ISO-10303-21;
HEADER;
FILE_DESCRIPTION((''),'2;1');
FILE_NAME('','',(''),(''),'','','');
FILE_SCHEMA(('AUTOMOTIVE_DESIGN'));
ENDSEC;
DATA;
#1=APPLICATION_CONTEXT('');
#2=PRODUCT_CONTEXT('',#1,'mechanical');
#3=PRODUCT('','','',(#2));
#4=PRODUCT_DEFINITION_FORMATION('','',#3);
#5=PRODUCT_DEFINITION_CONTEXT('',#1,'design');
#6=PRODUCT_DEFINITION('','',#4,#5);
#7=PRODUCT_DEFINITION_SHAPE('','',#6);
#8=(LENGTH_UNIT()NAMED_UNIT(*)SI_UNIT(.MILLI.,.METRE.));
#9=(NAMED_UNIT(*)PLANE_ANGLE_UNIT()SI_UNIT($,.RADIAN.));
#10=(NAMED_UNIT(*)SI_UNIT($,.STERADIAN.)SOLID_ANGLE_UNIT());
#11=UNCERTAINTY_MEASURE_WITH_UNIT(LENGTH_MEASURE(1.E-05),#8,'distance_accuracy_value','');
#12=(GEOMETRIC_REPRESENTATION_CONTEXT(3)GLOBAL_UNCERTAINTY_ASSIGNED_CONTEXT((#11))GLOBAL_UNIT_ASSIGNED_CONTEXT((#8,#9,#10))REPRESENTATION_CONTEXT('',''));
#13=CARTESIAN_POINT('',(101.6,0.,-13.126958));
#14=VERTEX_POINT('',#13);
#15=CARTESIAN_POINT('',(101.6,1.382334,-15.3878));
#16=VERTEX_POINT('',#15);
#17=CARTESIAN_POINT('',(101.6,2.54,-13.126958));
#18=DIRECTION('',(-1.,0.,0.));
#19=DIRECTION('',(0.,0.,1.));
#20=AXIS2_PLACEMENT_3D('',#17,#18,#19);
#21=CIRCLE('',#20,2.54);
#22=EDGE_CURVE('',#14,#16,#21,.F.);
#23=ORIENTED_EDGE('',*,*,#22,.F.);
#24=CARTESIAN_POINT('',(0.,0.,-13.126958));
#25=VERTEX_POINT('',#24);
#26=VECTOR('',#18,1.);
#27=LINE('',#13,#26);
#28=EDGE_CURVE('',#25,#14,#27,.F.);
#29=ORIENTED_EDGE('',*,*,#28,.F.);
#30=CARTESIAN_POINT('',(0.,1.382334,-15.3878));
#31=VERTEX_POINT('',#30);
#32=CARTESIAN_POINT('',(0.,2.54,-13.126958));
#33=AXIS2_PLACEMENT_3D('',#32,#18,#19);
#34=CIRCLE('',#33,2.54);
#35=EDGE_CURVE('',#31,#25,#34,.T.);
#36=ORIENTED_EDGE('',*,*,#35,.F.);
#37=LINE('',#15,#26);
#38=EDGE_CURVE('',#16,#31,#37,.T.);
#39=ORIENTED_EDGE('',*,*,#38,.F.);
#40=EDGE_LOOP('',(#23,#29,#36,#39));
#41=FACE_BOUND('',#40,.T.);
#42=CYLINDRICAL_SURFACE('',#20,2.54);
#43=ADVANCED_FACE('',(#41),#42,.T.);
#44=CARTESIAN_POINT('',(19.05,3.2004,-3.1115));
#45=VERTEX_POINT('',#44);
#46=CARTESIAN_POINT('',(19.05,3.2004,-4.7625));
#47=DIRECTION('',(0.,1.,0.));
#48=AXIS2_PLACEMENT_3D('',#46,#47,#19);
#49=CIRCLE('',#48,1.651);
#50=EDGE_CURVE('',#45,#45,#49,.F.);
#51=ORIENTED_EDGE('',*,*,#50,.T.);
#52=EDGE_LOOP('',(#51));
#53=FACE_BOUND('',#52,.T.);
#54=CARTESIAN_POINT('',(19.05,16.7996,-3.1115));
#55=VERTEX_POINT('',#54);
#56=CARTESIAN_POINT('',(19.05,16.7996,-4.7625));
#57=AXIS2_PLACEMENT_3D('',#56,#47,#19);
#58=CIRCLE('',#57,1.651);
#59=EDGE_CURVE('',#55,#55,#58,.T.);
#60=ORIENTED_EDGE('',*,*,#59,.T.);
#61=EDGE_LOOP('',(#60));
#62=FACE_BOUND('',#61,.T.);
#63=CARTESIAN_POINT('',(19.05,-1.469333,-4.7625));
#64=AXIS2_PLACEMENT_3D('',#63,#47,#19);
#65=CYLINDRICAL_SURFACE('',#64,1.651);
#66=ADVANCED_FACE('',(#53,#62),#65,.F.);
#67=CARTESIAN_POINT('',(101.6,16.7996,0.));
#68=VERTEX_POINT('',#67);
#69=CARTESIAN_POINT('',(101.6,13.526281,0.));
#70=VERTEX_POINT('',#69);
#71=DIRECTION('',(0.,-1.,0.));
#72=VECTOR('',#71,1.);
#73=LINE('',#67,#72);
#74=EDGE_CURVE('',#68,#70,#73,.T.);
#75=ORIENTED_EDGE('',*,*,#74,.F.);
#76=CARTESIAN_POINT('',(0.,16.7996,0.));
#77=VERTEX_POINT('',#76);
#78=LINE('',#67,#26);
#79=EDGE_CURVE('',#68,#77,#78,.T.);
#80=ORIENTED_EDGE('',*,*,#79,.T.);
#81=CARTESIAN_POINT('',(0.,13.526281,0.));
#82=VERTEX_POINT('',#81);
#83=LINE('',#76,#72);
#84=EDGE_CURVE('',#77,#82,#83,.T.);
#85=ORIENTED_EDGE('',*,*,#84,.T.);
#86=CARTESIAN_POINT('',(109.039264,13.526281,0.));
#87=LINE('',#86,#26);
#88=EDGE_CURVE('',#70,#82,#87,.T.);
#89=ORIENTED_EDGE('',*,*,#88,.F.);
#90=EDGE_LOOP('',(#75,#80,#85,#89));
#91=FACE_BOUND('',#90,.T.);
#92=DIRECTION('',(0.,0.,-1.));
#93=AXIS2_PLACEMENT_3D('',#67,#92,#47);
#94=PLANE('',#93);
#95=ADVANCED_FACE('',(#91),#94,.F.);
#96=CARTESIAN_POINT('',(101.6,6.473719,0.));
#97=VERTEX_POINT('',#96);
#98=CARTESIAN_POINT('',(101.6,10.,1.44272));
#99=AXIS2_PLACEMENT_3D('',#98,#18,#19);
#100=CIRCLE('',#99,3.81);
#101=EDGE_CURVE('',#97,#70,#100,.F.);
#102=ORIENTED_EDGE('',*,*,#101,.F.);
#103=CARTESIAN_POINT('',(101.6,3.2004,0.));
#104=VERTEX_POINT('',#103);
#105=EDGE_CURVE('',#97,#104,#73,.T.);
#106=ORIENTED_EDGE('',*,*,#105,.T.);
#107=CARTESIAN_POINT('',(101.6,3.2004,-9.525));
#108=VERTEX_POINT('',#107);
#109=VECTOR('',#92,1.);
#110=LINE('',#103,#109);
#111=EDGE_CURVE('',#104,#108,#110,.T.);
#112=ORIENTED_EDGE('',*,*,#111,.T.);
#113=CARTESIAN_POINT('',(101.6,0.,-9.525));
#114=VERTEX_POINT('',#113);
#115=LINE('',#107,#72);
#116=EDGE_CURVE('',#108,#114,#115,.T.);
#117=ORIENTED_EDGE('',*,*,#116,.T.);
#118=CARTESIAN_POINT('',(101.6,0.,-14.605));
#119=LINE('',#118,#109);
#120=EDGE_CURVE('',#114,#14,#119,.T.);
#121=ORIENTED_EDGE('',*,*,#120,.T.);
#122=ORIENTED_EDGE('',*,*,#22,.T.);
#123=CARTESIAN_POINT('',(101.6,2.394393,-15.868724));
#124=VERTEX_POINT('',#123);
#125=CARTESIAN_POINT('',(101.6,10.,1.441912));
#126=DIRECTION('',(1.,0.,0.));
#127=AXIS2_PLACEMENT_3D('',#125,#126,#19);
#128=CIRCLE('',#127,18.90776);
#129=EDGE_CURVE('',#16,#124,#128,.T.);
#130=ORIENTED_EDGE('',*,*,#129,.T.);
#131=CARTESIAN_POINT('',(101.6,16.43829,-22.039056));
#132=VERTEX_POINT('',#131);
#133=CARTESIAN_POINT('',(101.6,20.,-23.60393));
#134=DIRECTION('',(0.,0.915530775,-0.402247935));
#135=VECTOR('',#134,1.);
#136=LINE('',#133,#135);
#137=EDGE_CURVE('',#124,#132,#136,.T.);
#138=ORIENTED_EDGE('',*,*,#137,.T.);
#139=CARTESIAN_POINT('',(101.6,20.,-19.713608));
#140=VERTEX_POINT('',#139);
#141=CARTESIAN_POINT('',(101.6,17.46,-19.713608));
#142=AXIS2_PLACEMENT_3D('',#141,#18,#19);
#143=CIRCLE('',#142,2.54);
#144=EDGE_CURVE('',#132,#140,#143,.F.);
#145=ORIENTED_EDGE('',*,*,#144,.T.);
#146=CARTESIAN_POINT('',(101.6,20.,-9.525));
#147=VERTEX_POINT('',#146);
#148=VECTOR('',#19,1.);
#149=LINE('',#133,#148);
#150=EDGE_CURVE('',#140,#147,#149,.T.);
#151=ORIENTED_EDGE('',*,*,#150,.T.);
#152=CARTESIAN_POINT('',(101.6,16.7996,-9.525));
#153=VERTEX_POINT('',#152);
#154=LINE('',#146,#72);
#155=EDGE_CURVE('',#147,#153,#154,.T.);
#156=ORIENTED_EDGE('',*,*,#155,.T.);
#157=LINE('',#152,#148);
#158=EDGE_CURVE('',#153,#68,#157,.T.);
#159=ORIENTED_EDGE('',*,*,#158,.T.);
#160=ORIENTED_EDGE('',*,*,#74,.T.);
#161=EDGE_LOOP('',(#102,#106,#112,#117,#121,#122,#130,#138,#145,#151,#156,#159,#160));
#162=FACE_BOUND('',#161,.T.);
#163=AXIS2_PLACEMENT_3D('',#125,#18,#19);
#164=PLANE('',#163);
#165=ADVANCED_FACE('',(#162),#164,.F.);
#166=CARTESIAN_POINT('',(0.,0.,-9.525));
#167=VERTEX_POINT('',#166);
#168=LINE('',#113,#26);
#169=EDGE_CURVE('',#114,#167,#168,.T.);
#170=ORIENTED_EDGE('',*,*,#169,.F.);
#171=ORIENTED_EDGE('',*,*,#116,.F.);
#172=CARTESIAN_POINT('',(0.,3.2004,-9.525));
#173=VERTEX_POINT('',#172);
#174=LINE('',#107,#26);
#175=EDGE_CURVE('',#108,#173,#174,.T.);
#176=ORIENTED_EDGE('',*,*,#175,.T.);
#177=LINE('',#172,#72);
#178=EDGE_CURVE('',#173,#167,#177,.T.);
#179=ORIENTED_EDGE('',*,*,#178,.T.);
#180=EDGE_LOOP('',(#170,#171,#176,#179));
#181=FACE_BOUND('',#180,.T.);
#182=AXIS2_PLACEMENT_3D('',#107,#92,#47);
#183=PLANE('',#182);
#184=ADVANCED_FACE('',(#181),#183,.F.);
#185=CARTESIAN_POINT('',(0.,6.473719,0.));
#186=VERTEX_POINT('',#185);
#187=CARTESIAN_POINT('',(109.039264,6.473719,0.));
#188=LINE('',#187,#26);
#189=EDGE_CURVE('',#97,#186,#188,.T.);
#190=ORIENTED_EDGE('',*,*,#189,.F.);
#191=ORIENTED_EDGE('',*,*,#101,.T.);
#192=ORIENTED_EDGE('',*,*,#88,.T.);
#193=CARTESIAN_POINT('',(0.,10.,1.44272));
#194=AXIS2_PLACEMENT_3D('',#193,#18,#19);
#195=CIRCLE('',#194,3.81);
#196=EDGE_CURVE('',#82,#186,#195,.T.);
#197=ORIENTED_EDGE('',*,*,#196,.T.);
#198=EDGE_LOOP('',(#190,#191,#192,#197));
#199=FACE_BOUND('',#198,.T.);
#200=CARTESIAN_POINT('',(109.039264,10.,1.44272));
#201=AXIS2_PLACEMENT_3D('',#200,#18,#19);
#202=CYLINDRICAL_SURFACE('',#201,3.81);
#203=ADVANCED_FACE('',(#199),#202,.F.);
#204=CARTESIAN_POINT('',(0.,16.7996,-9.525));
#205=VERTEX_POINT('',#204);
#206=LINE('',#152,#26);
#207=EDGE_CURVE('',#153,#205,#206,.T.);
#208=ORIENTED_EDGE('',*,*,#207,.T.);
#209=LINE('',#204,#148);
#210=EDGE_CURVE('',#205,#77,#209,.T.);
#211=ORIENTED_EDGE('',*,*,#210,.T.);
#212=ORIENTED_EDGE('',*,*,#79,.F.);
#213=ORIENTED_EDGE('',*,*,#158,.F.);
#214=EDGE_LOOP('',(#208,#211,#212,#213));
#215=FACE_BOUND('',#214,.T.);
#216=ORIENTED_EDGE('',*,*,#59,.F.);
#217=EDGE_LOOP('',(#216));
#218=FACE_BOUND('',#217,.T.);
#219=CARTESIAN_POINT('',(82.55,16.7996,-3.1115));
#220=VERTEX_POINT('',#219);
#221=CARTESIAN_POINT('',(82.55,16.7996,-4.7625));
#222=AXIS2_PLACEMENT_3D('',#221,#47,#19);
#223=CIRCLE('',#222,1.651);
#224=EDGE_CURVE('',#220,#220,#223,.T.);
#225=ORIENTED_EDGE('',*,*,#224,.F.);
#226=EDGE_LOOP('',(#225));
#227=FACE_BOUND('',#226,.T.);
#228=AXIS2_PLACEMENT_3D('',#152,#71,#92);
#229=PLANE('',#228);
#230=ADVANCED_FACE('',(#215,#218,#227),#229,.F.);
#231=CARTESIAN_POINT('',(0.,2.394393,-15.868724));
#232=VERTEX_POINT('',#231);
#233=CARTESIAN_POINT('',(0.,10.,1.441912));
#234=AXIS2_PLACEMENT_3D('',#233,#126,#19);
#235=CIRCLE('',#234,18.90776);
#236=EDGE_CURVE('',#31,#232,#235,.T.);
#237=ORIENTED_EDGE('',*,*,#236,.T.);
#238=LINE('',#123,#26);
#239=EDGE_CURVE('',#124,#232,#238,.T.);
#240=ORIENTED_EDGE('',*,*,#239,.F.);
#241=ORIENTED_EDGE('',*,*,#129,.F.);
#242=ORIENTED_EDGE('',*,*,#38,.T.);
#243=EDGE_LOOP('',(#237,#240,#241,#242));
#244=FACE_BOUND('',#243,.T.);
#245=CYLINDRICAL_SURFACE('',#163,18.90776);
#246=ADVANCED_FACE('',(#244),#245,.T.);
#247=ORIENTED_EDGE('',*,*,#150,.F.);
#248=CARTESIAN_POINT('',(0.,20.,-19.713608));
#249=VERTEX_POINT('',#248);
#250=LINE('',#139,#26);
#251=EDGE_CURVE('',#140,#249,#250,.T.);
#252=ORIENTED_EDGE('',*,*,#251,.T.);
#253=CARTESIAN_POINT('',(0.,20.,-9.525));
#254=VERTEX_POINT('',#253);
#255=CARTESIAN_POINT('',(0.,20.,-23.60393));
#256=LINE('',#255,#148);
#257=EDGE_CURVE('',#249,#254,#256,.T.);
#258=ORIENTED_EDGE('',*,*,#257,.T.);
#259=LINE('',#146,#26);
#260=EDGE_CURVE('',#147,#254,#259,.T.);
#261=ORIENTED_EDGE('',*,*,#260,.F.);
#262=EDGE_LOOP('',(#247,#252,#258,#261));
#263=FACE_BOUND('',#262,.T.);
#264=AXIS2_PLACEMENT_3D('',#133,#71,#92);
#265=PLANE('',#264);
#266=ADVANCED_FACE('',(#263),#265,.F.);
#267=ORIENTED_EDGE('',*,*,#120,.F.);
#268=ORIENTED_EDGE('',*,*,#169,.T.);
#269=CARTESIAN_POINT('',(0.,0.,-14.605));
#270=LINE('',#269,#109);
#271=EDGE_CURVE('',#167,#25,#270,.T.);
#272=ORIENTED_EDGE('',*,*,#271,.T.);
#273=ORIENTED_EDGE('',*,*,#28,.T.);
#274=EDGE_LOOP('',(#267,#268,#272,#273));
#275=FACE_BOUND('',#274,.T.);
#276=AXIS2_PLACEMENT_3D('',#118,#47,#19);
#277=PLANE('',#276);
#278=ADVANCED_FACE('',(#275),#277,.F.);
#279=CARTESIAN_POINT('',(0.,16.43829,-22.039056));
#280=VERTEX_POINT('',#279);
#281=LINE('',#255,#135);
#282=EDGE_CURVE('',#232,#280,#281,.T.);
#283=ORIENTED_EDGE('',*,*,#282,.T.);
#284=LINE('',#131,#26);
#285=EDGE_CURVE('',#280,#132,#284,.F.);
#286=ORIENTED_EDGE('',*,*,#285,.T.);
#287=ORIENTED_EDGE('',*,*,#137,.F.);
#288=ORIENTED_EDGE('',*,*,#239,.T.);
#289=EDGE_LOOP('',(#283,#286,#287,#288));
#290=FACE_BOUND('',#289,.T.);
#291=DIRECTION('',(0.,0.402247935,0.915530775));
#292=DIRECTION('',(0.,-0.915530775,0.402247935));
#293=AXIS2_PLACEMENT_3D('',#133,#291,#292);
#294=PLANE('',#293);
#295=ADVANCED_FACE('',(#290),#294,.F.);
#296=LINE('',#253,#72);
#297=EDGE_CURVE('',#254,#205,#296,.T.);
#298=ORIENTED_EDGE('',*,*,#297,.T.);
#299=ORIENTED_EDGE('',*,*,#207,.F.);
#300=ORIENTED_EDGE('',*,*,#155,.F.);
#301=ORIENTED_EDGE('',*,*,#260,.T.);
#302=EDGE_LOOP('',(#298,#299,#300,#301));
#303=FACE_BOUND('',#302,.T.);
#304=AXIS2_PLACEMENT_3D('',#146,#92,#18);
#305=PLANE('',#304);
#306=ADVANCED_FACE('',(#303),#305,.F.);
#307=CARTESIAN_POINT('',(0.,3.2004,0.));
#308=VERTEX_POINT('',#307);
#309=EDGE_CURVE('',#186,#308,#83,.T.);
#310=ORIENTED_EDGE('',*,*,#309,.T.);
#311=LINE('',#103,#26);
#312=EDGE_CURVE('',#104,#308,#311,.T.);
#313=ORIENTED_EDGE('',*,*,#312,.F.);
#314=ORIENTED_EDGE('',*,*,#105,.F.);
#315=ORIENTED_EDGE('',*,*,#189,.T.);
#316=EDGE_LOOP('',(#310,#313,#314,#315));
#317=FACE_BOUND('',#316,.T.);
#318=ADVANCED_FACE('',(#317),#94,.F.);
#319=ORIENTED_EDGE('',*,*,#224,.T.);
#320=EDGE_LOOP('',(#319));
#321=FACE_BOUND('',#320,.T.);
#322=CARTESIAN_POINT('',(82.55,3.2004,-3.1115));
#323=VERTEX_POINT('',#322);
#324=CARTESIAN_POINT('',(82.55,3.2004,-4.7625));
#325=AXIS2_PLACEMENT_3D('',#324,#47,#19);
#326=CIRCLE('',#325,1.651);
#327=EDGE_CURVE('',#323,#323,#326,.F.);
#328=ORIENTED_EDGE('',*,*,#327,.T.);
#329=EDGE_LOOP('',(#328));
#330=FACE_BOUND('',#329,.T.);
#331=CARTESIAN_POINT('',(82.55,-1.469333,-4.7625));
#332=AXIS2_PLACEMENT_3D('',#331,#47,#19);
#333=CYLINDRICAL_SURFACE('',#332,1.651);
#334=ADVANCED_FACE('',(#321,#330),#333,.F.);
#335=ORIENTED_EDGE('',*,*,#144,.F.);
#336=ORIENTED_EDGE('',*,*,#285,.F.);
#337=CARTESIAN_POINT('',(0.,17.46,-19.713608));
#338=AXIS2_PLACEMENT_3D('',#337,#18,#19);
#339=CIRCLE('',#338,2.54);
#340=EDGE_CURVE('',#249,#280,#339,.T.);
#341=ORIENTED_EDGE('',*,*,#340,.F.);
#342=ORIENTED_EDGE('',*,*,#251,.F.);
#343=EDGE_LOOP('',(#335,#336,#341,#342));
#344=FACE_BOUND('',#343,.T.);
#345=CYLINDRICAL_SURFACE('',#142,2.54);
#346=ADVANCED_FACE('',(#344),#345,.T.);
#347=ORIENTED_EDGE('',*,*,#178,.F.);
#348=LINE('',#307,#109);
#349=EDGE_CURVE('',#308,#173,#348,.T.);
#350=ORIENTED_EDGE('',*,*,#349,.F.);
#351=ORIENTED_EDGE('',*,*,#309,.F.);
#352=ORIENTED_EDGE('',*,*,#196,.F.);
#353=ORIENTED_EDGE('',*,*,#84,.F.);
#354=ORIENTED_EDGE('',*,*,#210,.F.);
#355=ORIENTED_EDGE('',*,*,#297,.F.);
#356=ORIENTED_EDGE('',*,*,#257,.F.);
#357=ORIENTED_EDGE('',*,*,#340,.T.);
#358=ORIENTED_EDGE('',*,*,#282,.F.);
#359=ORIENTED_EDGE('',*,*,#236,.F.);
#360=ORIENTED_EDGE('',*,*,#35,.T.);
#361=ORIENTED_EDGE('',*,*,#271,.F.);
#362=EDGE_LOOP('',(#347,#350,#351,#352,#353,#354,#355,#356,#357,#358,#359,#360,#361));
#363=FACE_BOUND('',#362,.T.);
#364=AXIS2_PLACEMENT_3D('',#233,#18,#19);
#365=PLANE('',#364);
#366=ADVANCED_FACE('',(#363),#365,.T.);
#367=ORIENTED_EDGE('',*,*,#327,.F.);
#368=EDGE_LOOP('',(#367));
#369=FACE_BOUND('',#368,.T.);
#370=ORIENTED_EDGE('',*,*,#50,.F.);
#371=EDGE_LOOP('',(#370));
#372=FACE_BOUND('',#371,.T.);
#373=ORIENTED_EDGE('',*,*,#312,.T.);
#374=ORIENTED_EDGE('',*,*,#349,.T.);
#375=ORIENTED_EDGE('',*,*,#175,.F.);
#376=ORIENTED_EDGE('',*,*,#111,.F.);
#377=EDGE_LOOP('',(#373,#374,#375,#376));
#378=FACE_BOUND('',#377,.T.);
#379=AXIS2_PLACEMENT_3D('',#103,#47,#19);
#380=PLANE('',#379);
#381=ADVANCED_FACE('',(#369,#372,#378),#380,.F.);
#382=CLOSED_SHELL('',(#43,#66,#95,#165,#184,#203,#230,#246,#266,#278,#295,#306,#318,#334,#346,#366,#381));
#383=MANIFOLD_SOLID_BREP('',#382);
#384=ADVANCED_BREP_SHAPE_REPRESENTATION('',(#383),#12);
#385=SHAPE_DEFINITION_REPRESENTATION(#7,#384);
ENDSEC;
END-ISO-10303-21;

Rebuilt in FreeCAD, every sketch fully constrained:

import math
import FreeCAD as App
import Part
import Sketcher

V = App.Vector
Q = App.Units.Quantity


def edges_at(feature, points):
    """Names of the edges that pass closest to the given points."""
    edges = feature.Shape.Edges
    near = lambda p: min(range(len(edges)), key=lambda i: edges[i].distToShape(Part.Vertex(*p))[0])
    return sorted({f"Edge{near(p) + 1}" for p in points})

doc = App.newDocument("Part")
body = doc.addObject("PartDesign::Body", "Body")

sketch1 = body.newObject("Sketcher::SketchObject", "Sketch")
sketch1.AttachmentSupport = (doc.getObject("YZ_Plane"), [""])
sketch1.MapMode = "FlatFace"
sketch1.addGeometry([
    Part.LineSegment(V(16.8, 0, 0), V(3.2, 0, 0)),
    Part.LineSegment(V(3.2, 0, 0), V(3.2, -9.5, 0)),
    Part.LineSegment(V(3.2, -9.5, 0), V(0, -9.5, 0)),
    Part.LineSegment(V(0, -9.5, 0), V(0, -14.6, 0)),
    Part.ArcOfCircle(Part.Circle(V(10, 1.4, 0), V(0, 0, 1), 18.9), math.radians(-121.93), math.radians(-113.72)),
    Part.LineSegment(V(2.4, -15.9, 0), V(20, -23.6, 0)),
    Part.LineSegment(V(20, -23.6, 0), V(20, -9.5, 0)),
    Part.LineSegment(V(20, -9.5, 0), V(16.8, -9.5, 0)),
    Part.LineSegment(V(16.8, -9.5, 0), V(16.8, 0, 0)),
], False)
sketch1.addConstraint([
    Sketcher.Constraint("Coincident", 0, 2, 1, 1),
    Sketcher.Constraint("Coincident", 1, 2, 2, 1),
    Sketcher.Constraint("Coincident", 2, 2, 3, 1),
    Sketcher.Constraint("Coincident", 3, 2, 4, 1),
    Sketcher.Constraint("Tangent", 4, 2, 5, 1),
    Sketcher.Constraint("Coincident", 5, 2, 6, 1),
    Sketcher.Constraint("Coincident", 6, 2, 7, 1),
    Sketcher.Constraint("Coincident", 7, 2, 8, 1),
    Sketcher.Constraint("Coincident", 8, 2, 0, 1),
    Sketcher.Constraint("Horizontal", 0),
    Sketcher.Constraint("Vertical", 1),
    Sketcher.Constraint("Horizontal", 2),
    Sketcher.Constraint("Vertical", 3),
    Sketcher.Constraint("Vertical", 6),
    Sketcher.Constraint("Horizontal", 7),
    Sketcher.Constraint("Vertical", 8),
    Sketcher.Constraint("PointOnObject", 0, 2, -1),
    Sketcher.Constraint("PointOnObject", 2, 2, -2),
    Sketcher.Constraint("Horizontal", 2, 2, 6, 2),
    Sketcher.Constraint("Equal", 2, 7),
    Sketcher.Constraint("DistanceY", 3, 2, 3, 1, Q("0.2 in")),
    Sketcher.Constraint("Radius", 4, Q("0.7444 in")),
    Sketcher.Constraint("DistanceX", 2, 2, 2, 1, Q("0.126 in")),
    Sketcher.Constraint("DistanceY", 1, 2, 1, 1, Q("0.375 in")),
    Sketcher.Constraint("DistanceX", 0, 2, 0, 1, 13.5992),
    Sketcher.Constraint("DistanceY", 6, 1, 6, 2, 14.07893),
    Sketcher.Constraint("DistanceX", -1, 1, 4, 3, 10.0),
])
pad1 = body.newObject("PartDesign::Pad", "Pad")
pad1.Profile = sketch1
pad1.Length = Q("4 in")

sketch2 = body.newObject("Sketcher::SketchObject", "Sketch001")
sketch2.AttachmentSupport = (doc.getObject("YZ_Plane"), [""])
sketch2.MapMode = "FlatFace"
sketch2.addGeometry([
    Part.LineSegment(V(6.5, 0, 0), V(13.5, 0, 0)),
    Part.ArcOfCircle(Part.Circle(V(10, 1.4, 0), V(0, 0, 1), 3.8), math.radians(-158), math.radians(-22)),
], False)
sketch2.addConstraint([
    Sketcher.Constraint("Coincident", 0, 1, 1, 1),
    Sketcher.Constraint("Coincident", 1, 2, 0, 2),
    Sketcher.Constraint("Horizontal", 0),
    Sketcher.Constraint("PointOnObject", 0, 1, -1),
    Sketcher.Constraint("Radius", 1, Q("0.15 in")),
    Sketcher.Constraint("DistanceY", -1, 1, 1, 3, Q("0.0568 in")),
    Sketcher.Constraint("DistanceX", -1, 1, 1, 3, 10.0),
])
pocket1 = body.newObject("PartDesign::Pocket", "Pocket")
pocket1.Profile = sketch2
pocket1.Length = Q("4 in")
pocket1.Reversed = True

sketch3 = body.newObject("Sketcher::SketchObject", "Sketch002")
sketch3.AttachmentSupport = (doc.getObject("XZ_Plane"), [""])
sketch3.MapMode = "FlatFace"
sketch3.AttachmentOffset = App.Placement(V(0, 0, -16.7996), App.Rotation())
sketch3.addGeometry([
    Part.Circle(V(19.1, -4.8, 0), V(0, 0, 1), 1.7),
    Part.Circle(V(82.5, -4.8, 0), V(0, 0, 1), 1.7),
], False)
sketch3.addConstraint([
    Sketcher.Constraint("Equal", 0, 1),
    Sketcher.Constraint("Horizontal", 0, 3, 1, 3),
    Sketcher.Constraint("Diameter", 0, Q("0.13 in")),
    Sketcher.Constraint("DistanceX", 0, 3, 1, 3, Q("2.5 in")),
    Sketcher.Constraint("DistanceX", -1, 1, 0, 3, Q("0.75 in")),
    Sketcher.Constraint("DistanceY", 0, 3, -1, 1, Q("0.1875 in")),
])
pocket2 = body.newObject("PartDesign::Pocket", "Pocket001")
pocket2.Profile = sketch3
pocket2.Length = 13.5992
pocket2.Reversed = True
doc.recompute()

fillet = body.newObject("PartDesign::Fillet", "Fillet")
fillet.Base = (pocket2, edges_at(pocket2, [(50.8, 20, -23.604), (50.8, 0, -14.605)]))
fillet.Radius = Q("0.1 in")

doc.recompute()
